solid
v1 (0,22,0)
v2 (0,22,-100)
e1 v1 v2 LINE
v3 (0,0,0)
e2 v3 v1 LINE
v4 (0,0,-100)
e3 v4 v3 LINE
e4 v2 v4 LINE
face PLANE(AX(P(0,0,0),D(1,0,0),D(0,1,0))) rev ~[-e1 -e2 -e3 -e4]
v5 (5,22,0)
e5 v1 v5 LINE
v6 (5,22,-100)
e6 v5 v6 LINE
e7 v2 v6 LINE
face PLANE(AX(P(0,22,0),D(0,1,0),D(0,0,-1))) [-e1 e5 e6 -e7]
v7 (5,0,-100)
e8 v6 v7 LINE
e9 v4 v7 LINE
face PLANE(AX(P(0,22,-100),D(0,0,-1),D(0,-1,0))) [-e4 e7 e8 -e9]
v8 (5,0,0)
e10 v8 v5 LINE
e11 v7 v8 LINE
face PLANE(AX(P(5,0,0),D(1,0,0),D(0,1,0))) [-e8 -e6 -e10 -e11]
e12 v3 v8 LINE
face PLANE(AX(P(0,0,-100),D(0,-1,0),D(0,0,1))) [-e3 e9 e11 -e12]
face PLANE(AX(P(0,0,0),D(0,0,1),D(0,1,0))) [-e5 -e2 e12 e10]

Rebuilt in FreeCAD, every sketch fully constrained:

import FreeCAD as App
import Part
import Sketcher


def add_polygon(sketch, points):
    """Adds a closed chain of lines whose ends are joined by coincident constraints."""
    first, n = sketch.GeometryCount, len(points)
    for a, b in zip(points, points[1:] + points[:1]):
        sketch.addGeometry(Part.LineSegment(App.Vector(*a, 0), App.Vector(*b, 0)), False)
    for i in range(n):
        sketch.addConstraint(Sketcher.Constraint("Coincident", first + i, 2, first + (i + 1) % n, 1))

doc = App.newDocument("Part")
params = doc.addObject("Spreadsheet::Sheet", "Params")
for row, (alias, value) in enumerate([
    ("sketch1_width", "22 mm"),
    ("sketch1_height", "100 mm"),
    ("pad1_length", "5 mm"),
], start=1):
    params.set(f"A{row}", alias)
    params.set(f"B{row}", "=" + value)
    params.setAlias(f"B{row}", alias)

body = doc.addObject("PartDesign::Body", "Body")

sketch1 = doc.addObject("Sketcher::SketchObject", "Sketch")
body.addObject(sketch1)
sketch1.AttachmentSupport = (doc.YZ_Plane, [""])
sketch1.MapMode = "FlatFace"
add_polygon(sketch1, [(22, 0), (0, 0), (0, -100), (22, -100)])
sketch1.addConstraint(Sketcher.Constraint("Horizontal", 0))
sketch1.addConstraint(Sketcher.Constraint("Vertical", 1))
sketch1.addConstraint(Sketcher.Constraint("Horizontal", 2))
sketch1.addConstraint(Sketcher.Constraint("Vertical", 3))
sketch1.addConstraint(Sketcher.Constraint("Coincident", 0, 2, -1, 1))
sketch1.addConstraint(Sketcher.Constraint("DistanceX", 0, 2, 0, 1, 22.0))
sketch1.addConstraint(Sketcher.Constraint("DistanceY", 1, 2, 1, 1, 100.0))
sketch1.setExpression("Constraints[9]", "Params.sketch1_width")
sketch1.setExpression("Constraints[10]", "Params.sketch1_height")
pad1 = doc.addObject("PartDesign::Pad", "Pad")
body.addObject(pad1)
pad1.Profile = sketch1
pad1.setExpression("Length", "Params.pad1_length")

doc.recompute()
